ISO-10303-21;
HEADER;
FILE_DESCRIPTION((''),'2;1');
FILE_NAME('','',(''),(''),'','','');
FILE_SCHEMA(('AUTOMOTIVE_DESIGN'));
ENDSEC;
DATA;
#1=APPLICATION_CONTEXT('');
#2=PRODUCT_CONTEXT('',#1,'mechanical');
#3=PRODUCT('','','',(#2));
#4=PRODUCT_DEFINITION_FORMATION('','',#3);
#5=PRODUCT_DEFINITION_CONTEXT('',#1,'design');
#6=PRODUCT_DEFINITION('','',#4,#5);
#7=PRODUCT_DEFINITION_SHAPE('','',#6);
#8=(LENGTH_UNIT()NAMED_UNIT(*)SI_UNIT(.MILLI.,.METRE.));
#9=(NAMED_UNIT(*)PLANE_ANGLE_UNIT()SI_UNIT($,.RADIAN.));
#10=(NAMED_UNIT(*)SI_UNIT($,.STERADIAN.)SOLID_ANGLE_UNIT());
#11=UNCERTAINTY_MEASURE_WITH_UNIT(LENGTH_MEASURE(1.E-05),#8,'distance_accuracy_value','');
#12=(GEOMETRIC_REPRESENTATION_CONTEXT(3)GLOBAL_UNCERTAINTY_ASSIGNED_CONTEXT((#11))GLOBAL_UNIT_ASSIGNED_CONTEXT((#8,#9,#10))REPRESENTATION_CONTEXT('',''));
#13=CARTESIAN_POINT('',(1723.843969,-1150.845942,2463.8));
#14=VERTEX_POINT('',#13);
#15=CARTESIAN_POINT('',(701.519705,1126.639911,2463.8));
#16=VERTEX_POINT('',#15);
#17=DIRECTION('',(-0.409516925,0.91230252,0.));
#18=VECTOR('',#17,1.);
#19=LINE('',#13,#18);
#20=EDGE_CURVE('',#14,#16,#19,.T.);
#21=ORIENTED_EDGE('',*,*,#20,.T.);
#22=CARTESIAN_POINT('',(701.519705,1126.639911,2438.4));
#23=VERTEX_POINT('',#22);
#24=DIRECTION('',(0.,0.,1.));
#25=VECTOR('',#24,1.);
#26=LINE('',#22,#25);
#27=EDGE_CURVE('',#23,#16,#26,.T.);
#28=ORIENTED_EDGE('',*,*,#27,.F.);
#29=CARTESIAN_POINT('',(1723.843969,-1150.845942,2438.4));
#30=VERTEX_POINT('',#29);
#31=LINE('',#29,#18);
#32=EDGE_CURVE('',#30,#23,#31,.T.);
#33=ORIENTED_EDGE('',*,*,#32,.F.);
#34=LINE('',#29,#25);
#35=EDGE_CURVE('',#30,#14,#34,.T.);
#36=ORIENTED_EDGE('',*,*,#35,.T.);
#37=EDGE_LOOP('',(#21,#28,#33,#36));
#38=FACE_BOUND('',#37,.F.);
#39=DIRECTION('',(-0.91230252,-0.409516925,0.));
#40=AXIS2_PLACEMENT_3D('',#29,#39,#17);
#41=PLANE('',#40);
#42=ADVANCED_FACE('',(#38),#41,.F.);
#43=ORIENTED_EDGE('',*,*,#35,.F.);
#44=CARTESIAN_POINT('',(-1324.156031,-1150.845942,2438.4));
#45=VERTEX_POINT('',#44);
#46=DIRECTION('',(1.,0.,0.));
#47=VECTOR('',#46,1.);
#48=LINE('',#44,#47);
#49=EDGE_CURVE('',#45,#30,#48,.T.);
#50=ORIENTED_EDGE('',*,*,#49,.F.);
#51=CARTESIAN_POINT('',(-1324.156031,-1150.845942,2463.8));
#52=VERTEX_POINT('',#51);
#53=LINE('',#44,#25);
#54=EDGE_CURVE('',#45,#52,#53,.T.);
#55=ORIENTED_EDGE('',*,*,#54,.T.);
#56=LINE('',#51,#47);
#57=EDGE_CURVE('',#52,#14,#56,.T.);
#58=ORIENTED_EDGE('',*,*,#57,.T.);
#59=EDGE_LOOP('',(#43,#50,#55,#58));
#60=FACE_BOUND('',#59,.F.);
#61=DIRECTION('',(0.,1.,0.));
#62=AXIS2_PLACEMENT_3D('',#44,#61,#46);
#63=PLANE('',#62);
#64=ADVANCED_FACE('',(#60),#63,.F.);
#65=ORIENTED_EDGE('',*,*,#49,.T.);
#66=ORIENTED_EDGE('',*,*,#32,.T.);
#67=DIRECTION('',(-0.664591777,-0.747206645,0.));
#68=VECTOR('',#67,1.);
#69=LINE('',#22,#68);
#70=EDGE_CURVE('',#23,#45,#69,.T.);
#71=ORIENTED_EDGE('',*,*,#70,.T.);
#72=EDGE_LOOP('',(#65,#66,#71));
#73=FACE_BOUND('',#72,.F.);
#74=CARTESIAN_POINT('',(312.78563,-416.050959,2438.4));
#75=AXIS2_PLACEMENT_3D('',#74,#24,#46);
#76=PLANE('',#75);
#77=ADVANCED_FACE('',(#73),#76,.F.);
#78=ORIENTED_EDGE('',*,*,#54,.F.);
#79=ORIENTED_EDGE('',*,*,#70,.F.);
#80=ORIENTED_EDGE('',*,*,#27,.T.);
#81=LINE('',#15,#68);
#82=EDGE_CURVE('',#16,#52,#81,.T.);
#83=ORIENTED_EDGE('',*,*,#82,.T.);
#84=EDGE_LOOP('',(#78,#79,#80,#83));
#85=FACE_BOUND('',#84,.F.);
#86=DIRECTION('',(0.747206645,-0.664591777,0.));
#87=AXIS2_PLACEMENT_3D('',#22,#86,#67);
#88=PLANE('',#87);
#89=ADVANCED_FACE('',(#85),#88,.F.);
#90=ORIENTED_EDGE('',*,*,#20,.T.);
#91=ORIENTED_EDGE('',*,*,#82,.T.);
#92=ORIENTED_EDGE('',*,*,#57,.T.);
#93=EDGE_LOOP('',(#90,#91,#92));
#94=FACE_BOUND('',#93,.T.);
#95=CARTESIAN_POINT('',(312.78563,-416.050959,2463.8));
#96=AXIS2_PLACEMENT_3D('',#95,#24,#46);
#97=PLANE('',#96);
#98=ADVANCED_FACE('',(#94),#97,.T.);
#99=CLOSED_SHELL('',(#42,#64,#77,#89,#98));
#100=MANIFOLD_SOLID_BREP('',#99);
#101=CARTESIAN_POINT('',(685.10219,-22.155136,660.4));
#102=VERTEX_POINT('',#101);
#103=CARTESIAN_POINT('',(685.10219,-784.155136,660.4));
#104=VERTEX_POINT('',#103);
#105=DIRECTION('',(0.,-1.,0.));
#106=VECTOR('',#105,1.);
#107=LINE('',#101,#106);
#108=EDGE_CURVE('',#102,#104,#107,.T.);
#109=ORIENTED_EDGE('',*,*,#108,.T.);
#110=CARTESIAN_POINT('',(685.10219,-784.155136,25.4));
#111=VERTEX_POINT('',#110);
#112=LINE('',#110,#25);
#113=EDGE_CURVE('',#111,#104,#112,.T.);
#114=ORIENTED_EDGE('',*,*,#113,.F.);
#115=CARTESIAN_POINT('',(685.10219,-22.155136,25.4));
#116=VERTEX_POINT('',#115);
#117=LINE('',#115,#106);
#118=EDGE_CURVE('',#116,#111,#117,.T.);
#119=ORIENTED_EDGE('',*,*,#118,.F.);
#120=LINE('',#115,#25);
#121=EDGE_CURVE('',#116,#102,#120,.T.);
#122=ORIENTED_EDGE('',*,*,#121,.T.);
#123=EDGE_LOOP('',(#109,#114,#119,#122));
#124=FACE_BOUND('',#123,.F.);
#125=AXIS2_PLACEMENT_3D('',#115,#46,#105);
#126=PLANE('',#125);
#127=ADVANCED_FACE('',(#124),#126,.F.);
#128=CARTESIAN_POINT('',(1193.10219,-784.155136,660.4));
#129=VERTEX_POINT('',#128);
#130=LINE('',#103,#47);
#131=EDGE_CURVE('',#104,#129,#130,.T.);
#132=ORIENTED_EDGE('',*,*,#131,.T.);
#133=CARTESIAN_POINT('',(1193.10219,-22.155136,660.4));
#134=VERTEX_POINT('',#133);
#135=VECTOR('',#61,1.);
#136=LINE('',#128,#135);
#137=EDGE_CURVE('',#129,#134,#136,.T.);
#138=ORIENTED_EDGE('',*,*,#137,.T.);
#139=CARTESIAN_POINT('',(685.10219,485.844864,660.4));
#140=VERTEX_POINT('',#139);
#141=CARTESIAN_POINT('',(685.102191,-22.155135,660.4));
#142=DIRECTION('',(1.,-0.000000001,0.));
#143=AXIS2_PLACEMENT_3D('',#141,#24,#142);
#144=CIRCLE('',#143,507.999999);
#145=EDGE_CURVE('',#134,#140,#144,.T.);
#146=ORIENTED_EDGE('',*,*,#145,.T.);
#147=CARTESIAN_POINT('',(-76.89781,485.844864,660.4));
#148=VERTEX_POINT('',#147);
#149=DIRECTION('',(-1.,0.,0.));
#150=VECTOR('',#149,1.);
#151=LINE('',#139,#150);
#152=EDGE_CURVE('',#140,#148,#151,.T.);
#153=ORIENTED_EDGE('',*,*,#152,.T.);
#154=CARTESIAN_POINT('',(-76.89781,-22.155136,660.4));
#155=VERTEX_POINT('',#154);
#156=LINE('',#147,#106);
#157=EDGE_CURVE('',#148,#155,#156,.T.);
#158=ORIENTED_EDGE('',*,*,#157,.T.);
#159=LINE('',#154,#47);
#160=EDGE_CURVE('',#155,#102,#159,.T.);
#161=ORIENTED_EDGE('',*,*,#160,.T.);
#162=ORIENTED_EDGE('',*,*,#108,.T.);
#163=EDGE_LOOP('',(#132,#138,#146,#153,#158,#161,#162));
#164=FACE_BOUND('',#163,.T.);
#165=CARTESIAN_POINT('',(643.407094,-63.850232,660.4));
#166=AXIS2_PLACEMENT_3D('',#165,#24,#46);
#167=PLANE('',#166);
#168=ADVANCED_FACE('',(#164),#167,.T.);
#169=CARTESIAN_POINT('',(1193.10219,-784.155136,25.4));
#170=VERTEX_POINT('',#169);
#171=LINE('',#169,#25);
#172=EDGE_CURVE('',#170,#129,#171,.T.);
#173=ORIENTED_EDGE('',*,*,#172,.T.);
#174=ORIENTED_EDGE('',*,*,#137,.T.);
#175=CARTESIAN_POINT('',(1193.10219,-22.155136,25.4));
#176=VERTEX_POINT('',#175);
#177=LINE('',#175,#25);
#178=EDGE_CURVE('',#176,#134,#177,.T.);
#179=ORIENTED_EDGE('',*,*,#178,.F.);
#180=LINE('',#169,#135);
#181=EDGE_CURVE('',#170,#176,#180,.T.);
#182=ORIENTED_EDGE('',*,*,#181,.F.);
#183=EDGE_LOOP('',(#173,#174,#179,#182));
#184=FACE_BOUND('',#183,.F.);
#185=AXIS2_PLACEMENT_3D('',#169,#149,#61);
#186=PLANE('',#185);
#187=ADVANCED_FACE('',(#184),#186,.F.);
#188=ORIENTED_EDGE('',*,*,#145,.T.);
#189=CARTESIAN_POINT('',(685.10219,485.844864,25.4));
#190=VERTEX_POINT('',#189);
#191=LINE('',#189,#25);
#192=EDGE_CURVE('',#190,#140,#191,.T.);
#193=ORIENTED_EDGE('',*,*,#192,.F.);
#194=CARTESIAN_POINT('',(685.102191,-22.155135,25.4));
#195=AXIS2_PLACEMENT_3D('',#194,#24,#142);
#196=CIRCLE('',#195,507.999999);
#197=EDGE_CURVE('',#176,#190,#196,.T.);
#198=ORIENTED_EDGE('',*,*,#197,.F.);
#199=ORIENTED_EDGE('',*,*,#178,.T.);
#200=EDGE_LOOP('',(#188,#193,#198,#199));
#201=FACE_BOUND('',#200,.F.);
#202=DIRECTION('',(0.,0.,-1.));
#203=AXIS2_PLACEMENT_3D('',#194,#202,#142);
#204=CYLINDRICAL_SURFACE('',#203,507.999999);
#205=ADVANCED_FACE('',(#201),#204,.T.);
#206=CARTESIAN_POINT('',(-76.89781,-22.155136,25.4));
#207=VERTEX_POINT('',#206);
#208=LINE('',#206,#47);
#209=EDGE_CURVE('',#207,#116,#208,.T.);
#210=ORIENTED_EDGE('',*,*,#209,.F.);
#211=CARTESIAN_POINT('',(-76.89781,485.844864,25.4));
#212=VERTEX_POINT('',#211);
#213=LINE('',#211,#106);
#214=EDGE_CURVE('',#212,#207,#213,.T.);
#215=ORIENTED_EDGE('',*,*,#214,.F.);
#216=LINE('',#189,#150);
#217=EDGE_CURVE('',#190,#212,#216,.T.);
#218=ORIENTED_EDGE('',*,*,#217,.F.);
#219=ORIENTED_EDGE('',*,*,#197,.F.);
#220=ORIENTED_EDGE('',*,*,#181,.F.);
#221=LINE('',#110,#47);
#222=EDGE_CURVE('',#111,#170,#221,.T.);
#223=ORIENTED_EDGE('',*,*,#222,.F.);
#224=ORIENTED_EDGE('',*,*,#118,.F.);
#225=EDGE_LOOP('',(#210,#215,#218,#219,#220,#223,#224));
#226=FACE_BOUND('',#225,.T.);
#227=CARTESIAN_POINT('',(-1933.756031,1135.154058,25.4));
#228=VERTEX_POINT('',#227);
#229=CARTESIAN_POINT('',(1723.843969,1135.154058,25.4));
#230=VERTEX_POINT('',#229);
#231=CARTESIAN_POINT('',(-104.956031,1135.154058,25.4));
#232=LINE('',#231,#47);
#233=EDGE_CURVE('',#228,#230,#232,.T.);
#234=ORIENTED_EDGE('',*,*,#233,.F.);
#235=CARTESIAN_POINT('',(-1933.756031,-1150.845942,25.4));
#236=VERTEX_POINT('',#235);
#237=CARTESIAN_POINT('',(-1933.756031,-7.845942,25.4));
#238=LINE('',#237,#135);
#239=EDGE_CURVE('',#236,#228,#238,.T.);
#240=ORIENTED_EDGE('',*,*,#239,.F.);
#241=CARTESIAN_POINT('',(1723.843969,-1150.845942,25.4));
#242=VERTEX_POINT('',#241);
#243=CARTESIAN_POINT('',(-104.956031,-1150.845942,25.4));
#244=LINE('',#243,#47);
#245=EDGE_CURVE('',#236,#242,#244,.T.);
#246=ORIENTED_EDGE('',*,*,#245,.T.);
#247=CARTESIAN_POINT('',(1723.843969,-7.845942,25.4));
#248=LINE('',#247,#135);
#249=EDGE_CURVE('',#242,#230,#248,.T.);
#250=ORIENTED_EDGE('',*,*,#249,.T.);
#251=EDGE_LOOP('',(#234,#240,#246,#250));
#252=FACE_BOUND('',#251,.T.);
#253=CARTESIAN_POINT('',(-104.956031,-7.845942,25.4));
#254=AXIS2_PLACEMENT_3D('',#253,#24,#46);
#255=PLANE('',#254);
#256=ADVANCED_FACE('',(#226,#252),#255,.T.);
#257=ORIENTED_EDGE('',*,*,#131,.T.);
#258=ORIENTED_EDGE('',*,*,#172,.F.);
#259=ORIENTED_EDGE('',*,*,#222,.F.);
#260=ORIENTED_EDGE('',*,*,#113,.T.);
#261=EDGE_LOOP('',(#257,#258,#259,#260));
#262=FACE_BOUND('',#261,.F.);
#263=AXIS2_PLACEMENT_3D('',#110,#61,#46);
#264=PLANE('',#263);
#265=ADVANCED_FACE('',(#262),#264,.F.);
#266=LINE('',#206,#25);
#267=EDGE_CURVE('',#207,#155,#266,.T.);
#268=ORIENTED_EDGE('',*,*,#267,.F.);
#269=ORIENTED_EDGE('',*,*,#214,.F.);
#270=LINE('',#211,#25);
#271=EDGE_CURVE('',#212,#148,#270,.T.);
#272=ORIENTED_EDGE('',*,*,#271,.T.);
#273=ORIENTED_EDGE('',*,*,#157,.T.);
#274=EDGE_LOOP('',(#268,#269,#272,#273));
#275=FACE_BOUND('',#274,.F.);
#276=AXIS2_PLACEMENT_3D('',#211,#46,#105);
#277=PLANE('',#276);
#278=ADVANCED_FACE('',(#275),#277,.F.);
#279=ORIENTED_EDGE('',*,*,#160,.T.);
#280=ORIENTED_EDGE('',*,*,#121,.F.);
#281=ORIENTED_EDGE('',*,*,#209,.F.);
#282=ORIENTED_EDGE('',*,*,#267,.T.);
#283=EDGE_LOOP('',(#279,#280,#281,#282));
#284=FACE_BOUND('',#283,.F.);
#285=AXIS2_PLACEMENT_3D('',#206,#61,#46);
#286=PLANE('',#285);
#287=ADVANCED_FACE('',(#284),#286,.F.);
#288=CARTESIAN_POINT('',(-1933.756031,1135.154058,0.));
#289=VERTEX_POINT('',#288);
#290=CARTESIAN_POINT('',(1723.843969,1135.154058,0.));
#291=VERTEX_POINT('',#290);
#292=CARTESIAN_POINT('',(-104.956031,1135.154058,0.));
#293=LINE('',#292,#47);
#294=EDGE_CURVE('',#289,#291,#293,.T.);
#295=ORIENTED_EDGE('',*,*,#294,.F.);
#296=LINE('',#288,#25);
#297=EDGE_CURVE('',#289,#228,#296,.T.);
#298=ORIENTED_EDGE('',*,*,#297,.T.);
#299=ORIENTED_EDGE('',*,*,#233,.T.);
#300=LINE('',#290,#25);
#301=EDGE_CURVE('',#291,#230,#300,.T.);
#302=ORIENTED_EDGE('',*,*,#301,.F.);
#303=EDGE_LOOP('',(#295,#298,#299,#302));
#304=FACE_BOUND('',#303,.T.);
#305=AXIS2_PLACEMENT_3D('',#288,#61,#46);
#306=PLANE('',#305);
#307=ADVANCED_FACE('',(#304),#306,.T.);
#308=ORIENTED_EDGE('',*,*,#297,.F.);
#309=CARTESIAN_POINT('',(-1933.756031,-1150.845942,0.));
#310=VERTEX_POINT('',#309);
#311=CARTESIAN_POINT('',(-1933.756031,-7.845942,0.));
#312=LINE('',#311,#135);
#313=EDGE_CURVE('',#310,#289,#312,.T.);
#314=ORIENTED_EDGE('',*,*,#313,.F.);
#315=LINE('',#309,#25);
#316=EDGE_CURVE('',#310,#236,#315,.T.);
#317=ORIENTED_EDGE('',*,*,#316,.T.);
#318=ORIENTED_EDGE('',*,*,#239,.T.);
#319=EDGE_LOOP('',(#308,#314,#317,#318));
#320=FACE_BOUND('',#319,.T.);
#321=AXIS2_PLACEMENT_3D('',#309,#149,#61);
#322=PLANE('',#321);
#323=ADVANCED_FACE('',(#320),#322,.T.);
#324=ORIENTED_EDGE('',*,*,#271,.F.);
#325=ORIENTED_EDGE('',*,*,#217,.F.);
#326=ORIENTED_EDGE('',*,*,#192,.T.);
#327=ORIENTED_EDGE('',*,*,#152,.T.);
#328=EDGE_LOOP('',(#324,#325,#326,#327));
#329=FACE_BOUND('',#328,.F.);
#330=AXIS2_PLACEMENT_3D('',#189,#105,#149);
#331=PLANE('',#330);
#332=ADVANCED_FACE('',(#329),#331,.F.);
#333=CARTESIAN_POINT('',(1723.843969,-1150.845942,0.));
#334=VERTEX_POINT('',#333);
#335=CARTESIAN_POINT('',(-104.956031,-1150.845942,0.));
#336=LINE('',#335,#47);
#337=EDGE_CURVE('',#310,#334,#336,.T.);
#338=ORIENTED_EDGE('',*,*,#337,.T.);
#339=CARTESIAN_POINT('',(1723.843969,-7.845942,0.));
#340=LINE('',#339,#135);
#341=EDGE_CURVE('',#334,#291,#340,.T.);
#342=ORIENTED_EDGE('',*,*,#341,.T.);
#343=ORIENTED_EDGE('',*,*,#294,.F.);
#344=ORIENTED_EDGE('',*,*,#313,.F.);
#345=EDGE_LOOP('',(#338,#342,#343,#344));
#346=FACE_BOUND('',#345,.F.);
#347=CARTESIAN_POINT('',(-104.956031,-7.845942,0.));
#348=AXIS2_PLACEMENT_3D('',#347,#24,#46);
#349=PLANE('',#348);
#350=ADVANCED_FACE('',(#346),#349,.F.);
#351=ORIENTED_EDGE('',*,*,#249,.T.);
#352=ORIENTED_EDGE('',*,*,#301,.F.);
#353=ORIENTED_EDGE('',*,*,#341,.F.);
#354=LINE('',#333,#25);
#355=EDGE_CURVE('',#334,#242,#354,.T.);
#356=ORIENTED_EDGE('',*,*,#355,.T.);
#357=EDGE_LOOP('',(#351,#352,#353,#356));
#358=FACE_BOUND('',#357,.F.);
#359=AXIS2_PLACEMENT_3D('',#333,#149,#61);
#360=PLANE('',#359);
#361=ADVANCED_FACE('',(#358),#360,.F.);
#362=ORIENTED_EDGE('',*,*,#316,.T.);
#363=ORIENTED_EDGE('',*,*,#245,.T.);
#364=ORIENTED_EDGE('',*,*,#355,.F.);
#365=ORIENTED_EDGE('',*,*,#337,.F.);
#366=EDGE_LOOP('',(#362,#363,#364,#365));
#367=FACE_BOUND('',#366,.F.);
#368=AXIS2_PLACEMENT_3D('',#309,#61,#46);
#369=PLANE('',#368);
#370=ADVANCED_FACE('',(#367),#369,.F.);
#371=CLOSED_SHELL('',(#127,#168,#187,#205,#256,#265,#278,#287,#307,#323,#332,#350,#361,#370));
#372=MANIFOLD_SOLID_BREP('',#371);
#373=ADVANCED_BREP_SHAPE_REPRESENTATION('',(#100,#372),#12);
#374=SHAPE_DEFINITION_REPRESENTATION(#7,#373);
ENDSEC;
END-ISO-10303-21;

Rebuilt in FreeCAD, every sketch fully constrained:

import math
import FreeCAD as App
import Part
import Sketcher
Q = App.Units.Quantity

doc = App.newDocument("Part")
body = doc.addObject("PartDesign::Body", "Body")

sketch1 = doc.addObject("Sketcher::SketchObject", "Sketch")
body.addObject(sketch1)
sketch1.AttachmentSupport = (doc.XY_Plane, [""])
sketch1.MapMode = "FlatFace"
sketch1.addGeometry([
    Part.LineSegment(App.Vector(-1933.756031, 1135.154058, 0), App.Vector(-1933.756031, -1150.845942, 0)),
    Part.LineSegment(App.Vector(-1933.756031, -1150.845942, 0), App.Vector(1723.843969, -1150.845942, 0)),
    Part.LineSegment(App.Vector(1723.843969, -1150.845942, 0), App.Vector(1723.843969, 1135.154058, 0)),
    Part.LineSegment(App.Vector(1723.843969, 1135.154058, 0), App.Vector(-1933.756031, 1135.154058, 0)),
], False)
sketch1.addConstraint([
    Sketcher.Constraint("Coincident", 0, 2, 1, 1),
    Sketcher.Constraint("Coincident", 1, 2, 2, 1),
    Sketcher.Constraint("Coincident", 2, 2, 3, 1),
    Sketcher.Constraint("Coincident", 3, 2, 0, 1),
    Sketcher.Constraint("Vertical", 0),
    Sketcher.Constraint("Horizontal", 1),
    Sketcher.Constraint("Vertical", 2),
    Sketcher.Constraint("Horizontal", 3),
    Sketcher.Constraint("DistanceX", 1, 1, 1, 2, Q("144 in")),
    Sketcher.Constraint("DistanceY", 0, 2, 0, 1, Q("90 in")),
    Sketcher.Constraint("DistanceX", 0, 2, -1, 1, Q("1933.756031 mm")),
    Sketcher.Constraint("DistanceY", 0, 2, -1, 1, Q("1150.845942 mm")),
])
pad1 = doc.addObject("PartDesign::Pad", "Pad")
body.addObject(pad1)
pad1.Profile = sketch1
pad1.Length = Q("1 in")

sketch2 = doc.addObject("Sketcher::SketchObject", "Sketch001")
body.addObject(sketch2)
sketch2.AttachmentSupport = (doc.XY_Plane, [""])
sketch2.MapMode = "FlatFace"
sketch2.AttachmentOffset = App.Placement(App.Vector(0, 0, 1 * 25.4), App.Rotation())
sketch2.addGeometry([
    Part.LineSegment(App.Vector(1193.10219, -784.155136, 0), App.Vector(1193.10219, -22.155136, 0)),
    Part.ArcOfCircle(Part.Circle(App.Vector(685.102191, -22.155135, 0), App.Vector(0, 0, 1), 507.999999), math.radians(0), math.radians(90)),
    Part.LineSegment(App.Vector(685.10219, 485.844864, 0), App.Vector(-76.89781, 485.844864, 0)),
    Part.LineSegment(App.Vector(-76.89781, 485.844864, 0), App.Vector(-76.89781, -22.155136, 0)),
    Part.LineSegment(App.Vector(-76.89781, -22.155136, 0), App.Vector(685.10219, -22.155136, 0)),
    Part.LineSegment(App.Vector(685.10219, -22.155136, 0), App.Vector(685.10219, -784.155136, 0)),
    Part.LineSegment(App.Vector(685.10219, -784.155136, 0), App.Vector(1193.10219, -784.155136, 0)),
], False)
sketch2.addConstraint([
    Sketcher.Constraint("Tangent", 0, 2, 1, 1),
    Sketcher.Constraint("Tangent", 1, 2, 2, 1),
    Sketcher.Constraint("Coincident", 2, 2, 3, 1),
    Sketcher.Constraint("Coincident", 3, 2, 4, 1),
    Sketcher.Constraint("Coincident", 4, 2, 5, 1),
    Sketcher.Constraint("Coincident", 5, 2, 6, 1),
    Sketcher.Constraint("Coincident", 6, 2, 0, 1),
    Sketcher.Constraint("Vertical", 0),
    Sketcher.Constraint("Horizontal", 2),
    Sketcher.Constraint("Vertical", 3),
    Sketcher.Constraint("Horizontal", 4),
    Sketcher.Constraint("Vertical", 5),
    Sketcher.Constraint("Horizontal", 6),
    Sketcher.Constraint("Coincident", 4, 2, 1, 3),
    Sketcher.Constraint("Equal", 4, 0),
    Sketcher.Constraint("Radius", 1, Q("20 in")),
    Sketcher.Constraint("DistanceX", 2, 2, 2, 1, Q("30 in")),
    Sketcher.Constraint("DistanceX", -1, 1, 1, 3, Q("685.102191 mm")),
    Sketcher.Constraint("DistanceY", 1, 3, -1, 1, Q("22.155135 mm")),
])
pad2 = doc.addObject("PartDesign::Pad", "Pad001")
body.addObject(pad2)
pad2.Profile = sketch2
pad2.Length = Q("25 in")
body2 = doc.addObject("PartDesign::Body", "Body001")

sketch3 = doc.addObject("Sketcher::SketchObject", "Sketch002")
body2.addObject(sketch3)
sketch3.AttachmentSupport = (doc.getObject("XY_Plane001"), [""])
sketch3.MapMode = "FlatFace"
sketch3.AttachmentOffset = App.Placement(App.Vector(0, 0, 96 * 25.4), App.Rotation())
sketch3.addGeometry([
    Part.LineSegment(App.Vector(-1324.156031, -1150.845942, 0), App.Vector(1723.843969, -1150.845942, 0)),
    Part.LineSegment(App.Vector(1723.843969, -1150.845942, 0), App.Vector(701.519705, 1126.639911, 0)),
    Part.LineSegment(App.Vector(701.519705, 1126.639911, 0), App.Vector(-1324.156031, -1150.845942, 0)),
], False)
sketch3.addConstraint([
    Sketcher.Constraint("Coincident", 0, 2, 1, 1),
    Sketcher.Constraint("Coincident", 1, 2, 2, 1),
    Sketcher.Constraint("Coincident", 2, 2, 0, 1),
    Sketcher.Constraint("Horizontal", 0),
    Sketcher.Constraint("DistanceX", 0, 1, 0, 2, Q("120 in")),
    Sketcher.Constraint("Distance", 2, Q("120 in")),
    Sketcher.Constraint("DistanceX", -1, 1, 0, 2, Q("1723.843969 mm")),
    Sketcher.Constraint("DistanceY", 0, 2, -1, 1, Q("1150.845942 mm")),
    Sketcher.Constraint("DistanceY", -1, 1, 1, 2, Q("1126.639911 mm")),
])
pad3 = doc.addObject("PartDesign::Pad", "Pad002")
body2.addObject(pad3)
pad3.Profile = sketch3
pad3.Length = Q("1 in")

doc.recompute()
